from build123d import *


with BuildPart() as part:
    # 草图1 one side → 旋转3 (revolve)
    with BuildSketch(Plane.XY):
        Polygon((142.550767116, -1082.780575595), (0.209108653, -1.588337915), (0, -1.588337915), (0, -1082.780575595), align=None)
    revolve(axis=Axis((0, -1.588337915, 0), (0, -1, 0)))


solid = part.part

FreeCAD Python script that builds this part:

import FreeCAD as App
import Part
import Sketcher

V = App.Vector
Q = App.Units.Quantity


def add_polygon(sketch, points):
    """Adds a closed chain of lines whose ends are joined by coincident constraints."""
    first, n = sketch.GeometryCount, len(points)
    for a, b in zip(points, points[1:] + points[:1]):
        sketch.addGeometry(Part.LineSegment(App.Vector(*a, 0), App.Vector(*b, 0)), False)
    for i in range(n):
        sketch.addConstraint(Sketcher.Constraint("Coincident", first + i, 2, first + (i + 1) % n, 1))

doc = App.newDocument("Part")
body = doc.addObject("PartDesign::Body", "Body")

# Sketch on XY plane
sketch1 = body.newObject("Sketcher::SketchObject", "Sketch")
sketch1.AttachmentSupport = (doc.getObject("XY_Plane"), [""])
sketch1.MapMode = "FlatFace"
add_polygon(sketch1, [(142.55, -1082.78), (0.21, -1.59), (0, -1.59), (0, -1082.78)])  # lines 0-3
sketch1.addConstraint(Sketcher.Constraint("Horizontal", 1))
sketch1.addConstraint(Sketcher.Constraint("Vertical", 2))
sketch1.addConstraint(Sketcher.Constraint("Horizontal", 3))
sketch1.addConstraint(Sketcher.Constraint("PointOnObject", 1, 2, -2))
sketch1.addConstraint(Sketcher.Constraint("Angle", 0, Q("97.5 deg")))
sketch1.addConstraint(Sketcher.Constraint("DistanceX", 1, 2, 1, 1, Q("0.209109 mm")))
sketch1.addConstraint(Sketcher.Constraint("DistanceX", 3, 1, 3, 2, Q("142.550767 mm")))
sketch1.addConstraint(Sketcher.Constraint("DistanceY", 0, 2, -1, 1, Q("1.588338 mm")))
revolution = body.newObject("PartDesign::Revolution", "Revolution")
revolution.Profile = sketch1
revolution.ReferenceAxis = (sketch1, ["V_Axis"])
revolution.Angle = 360

doc.recompute()
